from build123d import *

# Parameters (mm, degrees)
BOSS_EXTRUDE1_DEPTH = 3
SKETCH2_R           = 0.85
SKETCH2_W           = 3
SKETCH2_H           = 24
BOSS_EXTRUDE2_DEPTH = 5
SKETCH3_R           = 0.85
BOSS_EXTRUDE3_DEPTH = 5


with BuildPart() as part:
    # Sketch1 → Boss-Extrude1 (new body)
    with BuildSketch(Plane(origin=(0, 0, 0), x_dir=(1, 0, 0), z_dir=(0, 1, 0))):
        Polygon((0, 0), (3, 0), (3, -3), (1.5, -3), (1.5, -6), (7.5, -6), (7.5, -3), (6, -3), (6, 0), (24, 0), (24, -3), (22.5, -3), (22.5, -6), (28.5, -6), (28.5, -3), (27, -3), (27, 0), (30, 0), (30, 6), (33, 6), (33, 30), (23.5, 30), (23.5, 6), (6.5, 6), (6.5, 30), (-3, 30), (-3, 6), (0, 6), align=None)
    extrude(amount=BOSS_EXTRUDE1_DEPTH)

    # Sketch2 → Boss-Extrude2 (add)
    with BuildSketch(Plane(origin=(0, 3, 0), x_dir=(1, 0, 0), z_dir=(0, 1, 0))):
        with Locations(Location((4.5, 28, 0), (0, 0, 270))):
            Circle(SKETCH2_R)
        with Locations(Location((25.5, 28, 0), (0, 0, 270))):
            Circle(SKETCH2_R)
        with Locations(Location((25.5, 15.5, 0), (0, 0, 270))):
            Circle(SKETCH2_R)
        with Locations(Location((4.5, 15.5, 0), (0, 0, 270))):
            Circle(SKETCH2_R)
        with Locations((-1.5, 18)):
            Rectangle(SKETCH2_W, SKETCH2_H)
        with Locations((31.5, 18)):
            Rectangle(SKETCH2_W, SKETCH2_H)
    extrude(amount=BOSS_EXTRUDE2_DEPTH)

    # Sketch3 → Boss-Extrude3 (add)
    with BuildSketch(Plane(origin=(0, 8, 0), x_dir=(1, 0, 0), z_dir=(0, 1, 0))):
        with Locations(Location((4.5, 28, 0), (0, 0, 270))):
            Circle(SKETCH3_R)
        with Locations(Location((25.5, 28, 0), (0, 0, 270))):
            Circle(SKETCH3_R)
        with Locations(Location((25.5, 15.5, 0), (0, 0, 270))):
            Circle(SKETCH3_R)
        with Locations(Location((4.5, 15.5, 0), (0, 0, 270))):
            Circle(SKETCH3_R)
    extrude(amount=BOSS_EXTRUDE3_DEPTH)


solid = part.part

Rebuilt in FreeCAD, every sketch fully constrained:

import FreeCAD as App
import Part
import Sketcher


def add_polygon(sketch, points):
    """Adds a closed chain of lines whose ends are joined by coincident constraints."""
    first, n = sketch.GeometryCount, len(points)
    for a, b in zip(points, points[1:] + points[:1]):
        sketch.addGeometry(Part.LineSegment(App.Vector(*a, 0), App.Vector(*b, 0)), False)
    for i in range(n):
        sketch.addConstraint(Sketcher.Constraint("Coincident", first + i, 2, first + (i + 1) % n, 1))

doc = App.newDocument("Part")
params = doc.addObject("Spreadsheet::Sheet", "Params")
for row, (alias, value) in enumerate([
    ("sketch1_width", "3 mm"),
    ("sketch1_width2", "6 mm"),
    ("sketch1_width3", "18 mm"),
    ("sketch1_width4", "17 mm"),
    ("sketch1_height", "24 mm"),
    ("pad1_length", "3 mm"),
    ("sketch2_diameter", "1.7 mm"),
    ("sketch2_width", "3 mm"),
    ("sketch2_height", "24 mm"),
    ("pad2_length", "5 mm"),
    ("sketch3_diameter", "1.7 mm"),
    ("pad3_length", "5 mm"),
], start=1):
    params.set(f"A{row}", alias)
    params.set(f"B{row}", "=" + value)
    params.setAlias(f"B{row}", alias)

body = doc.addObject("PartDesign::Body", "Body")

sketch1 = body.newObject("Sketcher::SketchObject", "Sketch")
sketch1.AttachmentSupport = (doc.getObject("XZ_Plane"), [""])
sketch1.MapMode = "FlatFace"
add_polygon(sketch1, [(0, 0), (3, 0), (3, 3), (1.5, 3), (1.5, 6), (7.5, 6), (7.5, 3), (6, 3), (6, 0), (24, 0), (24, 3), (22.5, 3), (22.5, 6), (28.5, 6), (28.5, 3), (27, 3), (27, 0), (30, 0), (30, -6), (33, -6), (33, -30), (23.5, -30), (23.5, -6), (6.5, -6), (6.5, -30), (-3, -30), (-3, -6), (0, -6)])
sketch1.addConstraint([
    Sketcher.Constraint("Horizontal", 0),
    Sketcher.Constraint("Vertical", 1),
    Sketcher.Constraint("Horizontal", 2),
    Sketcher.Constraint("Vertical", 3),
    Sketcher.Constraint("Horizontal", 4),
    Sketcher.Constraint("Vertical", 5),
    Sketcher.Constraint("Horizontal", 6),
    Sketcher.Constraint("Vertical", 7),
    Sketcher.Constraint("Horizontal", 8),
    Sketcher.Constraint("Vertical", 9),
    Sketcher.Constraint("Horizontal", 10),
    Sketcher.Constraint("Vertical", 11),
    Sketcher.Constraint("Horizontal", 12),
    Sketcher.Constraint("Vertical", 13),
    Sketcher.Constraint("Horizontal", 14),
    Sketcher.Constraint("Vertical", 15),
    Sketcher.Constraint("Horizontal", 16),
    Sketcher.Constraint("Vertical", 17),
    Sketcher.Constraint("Horizontal", 18),
    Sketcher.Constraint("Vertical", 19),
    Sketcher.Constraint("Horizontal", 20),
    Sketcher.Constraint("Vertical", 21),
    Sketcher.Constraint("Horizontal", 22),
    Sketcher.Constraint("Vertical", 23),
    Sketcher.Constraint("Horizontal", 24),
    Sketcher.Constraint("Vertical", 25),
    Sketcher.Constraint("Horizontal", 26),
    Sketcher.Constraint("Vertical", 27),
    Sketcher.Constraint("Coincident", 27, 2, -1, 1),
    Sketcher.Constraint("PointOnObject", 7, 2, -1),
    Sketcher.Constraint("PointOnObject", 15, 2, -1),
    Sketcher.Constraint("Horizontal", 2, 2, 5, 2),
    Sketcher.Constraint("Horizontal", 6, 2, 9, 2),
    Sketcher.Constraint("Horizontal", 4, 2, 11, 2),
    Sketcher.Constraint("Horizontal", 10, 2, 13, 2),
    Sketcher.Constraint("Horizontal", 18, 2, 21, 2),
    Sketcher.Constraint("Horizontal", 20, 2, 23, 2),
    Sketcher.Constraint("Horizontal", 22, 2, 25, 2),
    Sketcher.Constraint("Equal", 2, 6),
    Sketcher.Constraint("Equal", 6, 10),
    Sketcher.Constraint("Equal", 4, 12),
    Sketcher.Constraint("Equal", 10, 14),
    Sketcher.Constraint("Equal", 0, 16),
    Sketcher.Constraint("Equal", 16, 18),
    Sketcher.Constraint("Equal", 20, 24),
    Sketcher.Constraint("Equal", 18, 26),
    Sketcher.Constraint("Equal", 26, 1),
    Sketcher.Constraint("Equal", 1, 3),
    Sketcher.Constraint("Equal", 12, 17),
    Sketcher.Constraint("DistanceX", 0, 1, 0, 2, 3.0),
    Sketcher.Constraint("DistanceX", 4, 1, 4, 2, 6.0),
    Sketcher.Constraint("DistanceX", 8, 1, 8, 2, 18.0),
    Sketcher.Constraint("DistanceX", 22, 2, 22, 1, 17.0),
    Sketcher.Constraint("DistanceY", 19, 2, 19, 1, 24.0),
    Sketcher.Constraint("DistanceX", 2, 2, 2, 1, 1.5),
])
sketch1.setExpression("Constraints[77]", "Params.sketch1_width")
sketch1.setExpression("Constraints[78]", "Params.sketch1_width2")
sketch1.setExpression("Constraints[79]", "Params.sketch1_width3")
sketch1.setExpression("Constraints[80]", "Params.sketch1_width4")
sketch1.setExpression("Constraints[81]", "Params.sketch1_height")
pad1 = body.newObject("PartDesign::Pad", "Pad")
pad1.Profile = sketch1
pad1.setExpression("Length", "Params.pad1_length")
pad1.Reversed = True

sketch2 = body.newObject("Sketcher::SketchObject", "Sketch001")
sketch2.AttachmentSupport = (doc.getObject("XZ_Plane"), [""])
sketch2.MapMode = "FlatFace"
sketch2.AttachmentOffset = App.Placement(App.Vector(0, 0, -3), App.Rotation())
sketch2.addGeometry(Part.Circle(App.Vector(4.5, -28, 0), App.Vector(0, 0, 1), 0.8), False)
sketch2.addGeometry(Part.Circle(App.Vector(25.5, -28, 0), App.Vector(0, 0, 1), 0.8), False)
sketch2.addGeometry(Part.Circle(App.Vector(25.5, -15.5, 0), App.Vector(0, 0, 1), 0.8), False)
sketch2.addGeometry(Part.Circle(App.Vector(4.5, -15.5, 0), App.Vector(0, 0, 1), 0.8), False)
add_polygon(sketch2, [(-3, -30), (-3, -6), (0, -6), (0, -30)])
add_polygon(sketch2, [(30, -30), (30, -6), (33, -6), (33, -30)])
sketch2.addConstraint([
    Sketcher.Constraint("Vertical", 4),
    Sketcher.Constraint("Horizontal", 5),
    Sketcher.Constraint("Vertical", 6),
    Sketcher.Constraint("Horizontal", 7),
    Sketcher.Constraint("Vertical", 8),
    Sketcher.Constraint("Horizontal", 9),
    Sketcher.Constraint("Vertical", 10),
    Sketcher.Constraint("Horizontal", 11),
    Sketcher.Constraint("Equal", 0, 1),
    Sketcher.Constraint("Equal", 1, 2),
    Sketcher.Constraint("Equal", 2, 3),
    Sketcher.Constraint("PointOnObject", 5, 2, -2),
    Sketcher.Constraint("Horizontal", 0, 3, 1, 3),
    Sketcher.Constraint("Horizontal", 2, 3, 3, 3),
    Sketcher.Constraint("Horizontal", 5, 2, 8, 2),
    Sketcher.Constraint("Horizontal", 7, 2, 10, 2),
    Sketcher.Constraint("Vertical", 1, 3, 2, 3),
    Sketcher.Constraint("Vertical", 0, 3, 3, 3),
    Sketcher.Constraint("Equal", 7, 9),
    Sketcher.Constraint("Diameter", 0, 1.7),
    Sketcher.Constraint("DistanceX", 5, 1, 5, 2, 3.0),
    Sketcher.Constraint("DistanceY", 4, 1, 4, 2, 24.0),
    Sketcher.Constraint("DistanceY", 0, 3, -1, 1, 28.0),
    Sketcher.Constraint("DistanceY", 4, 2, -1, 1, 6.0),
    Sketcher.Constraint("DistanceX", -1, 1, 8, 2, 30.0),
    Sketcher.Constraint("DistanceX", 0, 3, 1, 3, 21.0),
    Sketcher.Constraint("DistanceX", -1, 1, 0, 3, 4.5),
    Sketcher.Constraint("DistanceY", 2, 3, -1, 1, 15.5),
])
sketch2.setExpression("Constraints[27]", "Params.sketch2_diameter")
sketch2.setExpression("Constraints[28]", "Params.sketch2_width")
sketch2.setExpression("Constraints[29]", "Params.sketch2_height")
pad2 = body.newObject("PartDesign::Pad", "Pad001")
pad2.Profile = sketch2
pad2.setExpression("Length", "Params.pad2_length")
pad2.Reversed = True

sketch3 = body.newObject("Sketcher::SketchObject", "Sketch002")
sketch3.AttachmentSupport = (doc.getObject("XZ_Plane"), [""])
sketch3.MapMode = "FlatFace"
sketch3.AttachmentOffset = App.Placement(App.Vector(0, 0, -8), App.Rotation())
sketch3.addGeometry([
    Part.Circle(App.Vector(4.5, -28, 0), App.Vector(0, 0, 1), 0.8),
    Part.Circle(App.Vector(25.5, -28, 0), App.Vector(0, 0, 1), 0.8),
    Part.Circle(App.Vector(25.5, -15.5, 0), App.Vector(0, 0, 1), 0.8),
    Part.Circle(App.Vector(4.5, -15.5, 0), App.Vector(0, 0, 1), 0.8),
], False)
sketch3.addConstraint([
    Sketcher.Constraint("Equal", 0, 1),
    Sketcher.Constraint("Equal", 1, 2),
    Sketcher.Constraint("Equal", 2, 3),
    Sketcher.Constraint("Horizontal", 0, 3, 1, 3),
    Sketcher.Constraint("Horizontal", 2, 3, 3, 3),
    Sketcher.Constraint("Vertical", 1, 3, 2, 3),
    Sketcher.Constraint("Vertical", 0, 3, 3, 3),
    Sketcher.Constraint("Diameter", 0, 1.7),
    Sketcher.Constraint("DistanceY", 0, 3, -1, 1, 28.0),
    Sketcher.Constraint("DistanceX", 0, 3, 1, 3, 21.0),
    Sketcher.Constraint("DistanceX", -1, 1, 0, 3, 4.5),
    Sketcher.Constraint("DistanceY", 2, 3, -1, 1, 15.5),
])
sketch3.setExpression("Constraints[7]", "Params.sketch3_diameter")
pad3 = body.newObject("PartDesign::Pad", "Pad002")
pad3.Profile = sketch3
pad3.setExpression("Length", "Params.pad3_length")
pad3.Reversed = True

doc.recompute()
